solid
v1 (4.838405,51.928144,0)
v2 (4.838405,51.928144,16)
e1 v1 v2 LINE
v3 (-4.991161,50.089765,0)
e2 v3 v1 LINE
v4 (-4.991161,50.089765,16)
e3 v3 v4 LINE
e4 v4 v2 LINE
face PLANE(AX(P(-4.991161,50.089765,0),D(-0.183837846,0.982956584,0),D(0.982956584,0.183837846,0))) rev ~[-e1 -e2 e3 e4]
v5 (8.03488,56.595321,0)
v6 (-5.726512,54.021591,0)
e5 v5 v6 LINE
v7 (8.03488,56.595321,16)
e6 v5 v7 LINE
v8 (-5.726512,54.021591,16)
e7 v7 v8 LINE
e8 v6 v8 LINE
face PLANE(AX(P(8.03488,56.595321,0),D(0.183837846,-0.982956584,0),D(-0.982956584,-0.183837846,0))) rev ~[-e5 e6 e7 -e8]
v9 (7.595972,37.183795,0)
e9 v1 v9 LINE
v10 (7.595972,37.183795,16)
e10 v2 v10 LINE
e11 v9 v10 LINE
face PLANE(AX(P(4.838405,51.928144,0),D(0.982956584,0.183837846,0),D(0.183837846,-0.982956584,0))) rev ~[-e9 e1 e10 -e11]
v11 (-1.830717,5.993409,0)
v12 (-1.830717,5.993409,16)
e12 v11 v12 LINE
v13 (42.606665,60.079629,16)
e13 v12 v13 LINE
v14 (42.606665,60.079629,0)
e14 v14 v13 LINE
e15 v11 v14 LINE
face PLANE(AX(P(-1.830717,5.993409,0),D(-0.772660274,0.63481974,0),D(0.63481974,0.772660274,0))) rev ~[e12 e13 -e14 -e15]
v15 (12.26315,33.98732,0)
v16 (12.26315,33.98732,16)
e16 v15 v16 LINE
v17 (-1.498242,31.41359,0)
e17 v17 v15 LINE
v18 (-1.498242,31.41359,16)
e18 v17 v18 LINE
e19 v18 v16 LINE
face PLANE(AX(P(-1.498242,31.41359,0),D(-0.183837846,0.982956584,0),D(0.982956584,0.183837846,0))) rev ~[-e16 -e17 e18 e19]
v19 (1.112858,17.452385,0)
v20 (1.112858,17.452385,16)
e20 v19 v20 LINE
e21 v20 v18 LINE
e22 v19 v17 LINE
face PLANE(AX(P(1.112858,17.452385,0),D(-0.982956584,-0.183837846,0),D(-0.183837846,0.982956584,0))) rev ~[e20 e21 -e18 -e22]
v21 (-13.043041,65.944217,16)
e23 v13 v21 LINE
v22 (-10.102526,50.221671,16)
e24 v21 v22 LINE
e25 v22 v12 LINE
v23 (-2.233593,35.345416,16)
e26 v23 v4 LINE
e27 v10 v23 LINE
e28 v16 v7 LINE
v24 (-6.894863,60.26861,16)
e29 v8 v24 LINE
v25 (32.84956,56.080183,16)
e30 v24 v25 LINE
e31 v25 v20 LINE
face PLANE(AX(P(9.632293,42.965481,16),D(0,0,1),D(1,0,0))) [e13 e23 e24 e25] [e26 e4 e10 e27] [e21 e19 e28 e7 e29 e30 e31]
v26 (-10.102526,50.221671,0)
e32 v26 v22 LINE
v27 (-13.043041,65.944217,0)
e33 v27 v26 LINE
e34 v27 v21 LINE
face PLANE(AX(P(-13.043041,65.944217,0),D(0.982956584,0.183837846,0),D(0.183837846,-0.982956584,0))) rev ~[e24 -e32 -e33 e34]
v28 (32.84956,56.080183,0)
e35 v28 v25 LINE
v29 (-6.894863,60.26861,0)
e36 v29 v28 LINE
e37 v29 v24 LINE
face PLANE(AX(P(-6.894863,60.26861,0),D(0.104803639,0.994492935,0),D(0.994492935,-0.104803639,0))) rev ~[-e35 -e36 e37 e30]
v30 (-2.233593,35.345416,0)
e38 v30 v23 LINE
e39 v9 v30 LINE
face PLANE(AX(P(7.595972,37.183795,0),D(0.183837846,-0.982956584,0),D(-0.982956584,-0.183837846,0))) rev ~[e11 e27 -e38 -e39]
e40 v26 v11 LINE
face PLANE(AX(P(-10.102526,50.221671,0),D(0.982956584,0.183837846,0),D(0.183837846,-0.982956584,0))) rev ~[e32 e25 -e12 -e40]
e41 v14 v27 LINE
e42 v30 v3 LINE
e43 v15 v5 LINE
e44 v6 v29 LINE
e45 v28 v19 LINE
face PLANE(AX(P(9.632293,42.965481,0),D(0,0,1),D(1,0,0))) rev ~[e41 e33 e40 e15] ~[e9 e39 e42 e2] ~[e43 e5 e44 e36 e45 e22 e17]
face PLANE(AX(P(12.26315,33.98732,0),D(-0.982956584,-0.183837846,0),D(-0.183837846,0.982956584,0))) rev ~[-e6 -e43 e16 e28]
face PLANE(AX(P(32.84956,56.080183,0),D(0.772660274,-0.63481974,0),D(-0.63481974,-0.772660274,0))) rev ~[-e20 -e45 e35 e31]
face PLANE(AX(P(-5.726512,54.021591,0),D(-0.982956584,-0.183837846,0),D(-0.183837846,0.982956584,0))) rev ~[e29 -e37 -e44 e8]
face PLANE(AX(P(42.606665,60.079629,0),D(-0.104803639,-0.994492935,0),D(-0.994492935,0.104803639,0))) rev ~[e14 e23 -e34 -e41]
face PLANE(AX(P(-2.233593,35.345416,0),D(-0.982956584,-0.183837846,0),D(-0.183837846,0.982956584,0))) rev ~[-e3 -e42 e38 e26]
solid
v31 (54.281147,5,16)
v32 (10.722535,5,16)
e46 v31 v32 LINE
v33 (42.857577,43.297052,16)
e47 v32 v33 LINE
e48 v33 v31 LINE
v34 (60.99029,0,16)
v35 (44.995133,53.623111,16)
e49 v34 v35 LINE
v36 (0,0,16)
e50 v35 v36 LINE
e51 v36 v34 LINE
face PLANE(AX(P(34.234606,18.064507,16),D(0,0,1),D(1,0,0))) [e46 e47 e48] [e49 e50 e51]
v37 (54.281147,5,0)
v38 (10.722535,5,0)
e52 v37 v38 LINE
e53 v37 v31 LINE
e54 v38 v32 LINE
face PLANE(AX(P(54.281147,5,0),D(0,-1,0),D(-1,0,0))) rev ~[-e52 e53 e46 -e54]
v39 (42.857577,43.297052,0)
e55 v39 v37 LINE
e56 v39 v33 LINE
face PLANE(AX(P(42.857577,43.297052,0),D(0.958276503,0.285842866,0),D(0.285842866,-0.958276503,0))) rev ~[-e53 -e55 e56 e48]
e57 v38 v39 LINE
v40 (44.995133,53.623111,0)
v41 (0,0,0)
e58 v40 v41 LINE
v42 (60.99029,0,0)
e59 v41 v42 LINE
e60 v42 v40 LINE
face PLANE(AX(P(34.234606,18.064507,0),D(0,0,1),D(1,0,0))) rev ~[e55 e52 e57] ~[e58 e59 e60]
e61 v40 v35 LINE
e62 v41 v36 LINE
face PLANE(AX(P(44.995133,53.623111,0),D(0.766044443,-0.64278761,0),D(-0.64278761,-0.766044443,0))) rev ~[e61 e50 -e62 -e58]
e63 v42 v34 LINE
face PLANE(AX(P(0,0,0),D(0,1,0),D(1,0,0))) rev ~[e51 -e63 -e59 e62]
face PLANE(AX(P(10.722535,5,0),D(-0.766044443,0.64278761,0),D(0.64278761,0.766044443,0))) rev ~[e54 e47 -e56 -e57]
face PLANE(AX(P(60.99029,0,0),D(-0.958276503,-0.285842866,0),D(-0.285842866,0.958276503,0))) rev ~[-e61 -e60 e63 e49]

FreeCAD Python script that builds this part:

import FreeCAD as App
import Part
import Sketcher
from FreeCAD import Vector
Q = App.Units.Quantity

doc = App.newDocument("Part")
params = doc.addObject("Spreadsheet::Sheet", "Params")
for row, (alias, value) in enumerate([
    ("sketch1_length", "70 mm"),
    ("sketch1_length2", "10 mm"),
    ("sketch1_length3", "15 mm"),
    ("sketch1_length4", "14 mm"),
    ("sketch1_length5", "23 mm"),
    ("pad1_length", "16 mm"),
    ("sketch2_length", "70 mm"),
    ("pad2_length", "16 mm"),
], start=1):
    params.set(f"A{row}", alias)
    params.set(f"B{row}", "=" + value)
    params.setAlias(f"B{row}", alias)

body = doc.addObject("PartDesign::Body", "Body")

# Sketch on XY plane
sketch1 = body.newObject("Sketcher::SketchObject", "Sketch")
sketch1.AttachmentSupport = (doc.getObject("XY_Plane"), [""])
sketch1.MapMode = "FlatFace"
sketch1.addGeometry([
    Part.LineSegment(Vector(-1.830717, 5.993409, 0), Vector(42.606665, 60.079629, 0)),  # 0
    Part.LineSegment(Vector(42.606665, 60.079629, 0), Vector(-13.043041, 65.944217, 0)),  # 1
    Part.LineSegment(Vector(-13.043041, 65.944217, 0), Vector(-10.102526, 50.221671, 0)),  # 2
    Part.LineSegment(Vector(-10.102526, 50.221671, 0), Vector(-1.830717, 5.993409, 0)),  # 3
    Part.LineSegment(Vector(7.595972, 37.183795, 0), Vector(-2.233593, 35.345416, 0)),  # 4
    Part.LineSegment(Vector(-2.233593, 35.345416, 0), Vector(-4.991161, 50.089765, 0)),  # 5
    Part.LineSegment(Vector(-4.991161, 50.089765, 0), Vector(4.838405, 51.928144, 0)),  # 6
    Part.LineSegment(Vector(4.838405, 51.928144, 0), Vector(7.595972, 37.183795, 0)),  # 7
    Part.LineSegment(Vector(-5.726512, 54.021591, 0), Vector(-6.894863, 60.26861, 0)),  # 8
    Part.LineSegment(Vector(-6.894863, 60.26861, 0), Vector(32.84956, 56.080183, 0)),  # 9
    Part.LineSegment(Vector(32.84956, 56.080183, 0), Vector(1.112858, 17.452385, 0)),  # 10
    Part.LineSegment(Vector(1.112858, 17.452385, 0), Vector(-1.498242, 31.41359, 0)),  # 11
    Part.LineSegment(Vector(-1.498242, 31.41359, 0), Vector(12.26315, 33.98732, 0)),  # 12
    Part.LineSegment(Vector(12.26315, 33.98732, 0), Vector(8.03488, 56.595321, 0)),  # 13
    Part.LineSegment(Vector(8.03488, 56.595321, 0), Vector(-5.726512, 54.021591, 0)),  # 14
], False)
sketch1.addConstraint([
    Sketcher.Constraint("Coincident", 0, 2, 1, 1),
    Sketcher.Constraint("Coincident", 1, 2, 2, 1),
    Sketcher.Constraint("Coincident", 2, 2, 3, 1),
    Sketcher.Constraint("Coincident", 3, 2, 0, 1),
    Sketcher.Constraint("Coincident", 4, 2, 5, 1),
    Sketcher.Constraint("Coincident", 5, 2, 6, 1),
    Sketcher.Constraint("Coincident", 6, 2, 7, 1),
    Sketcher.Constraint("Coincident", 7, 2, 4, 1),
    Sketcher.Constraint("Coincident", 8, 2, 9, 1),
    Sketcher.Constraint("Coincident", 9, 2, 10, 1),
    Sketcher.Constraint("Coincident", 10, 2, 11, 1),
    Sketcher.Constraint("Coincident", 11, 2, 12, 1),
    Sketcher.Constraint("Coincident", 12, 2, 13, 1),
    Sketcher.Constraint("Coincident", 13, 2, 14, 1),
    Sketcher.Constraint("Coincident", 14, 2, 8, 1),
    Sketcher.Constraint("Parallel", 2, 3),
    Sketcher.Constraint("Perpendicular", 3, 4),
    Sketcher.Constraint("Perpendicular", 4, 5),
    Sketcher.Constraint("Perpendicular", 5, 6),
    Sketcher.Constraint("Perpendicular", 6, 7),
    Sketcher.Constraint("Parallel", 7, 8),
    Sketcher.Constraint("Parallel", 1, 9),
    Sketcher.Constraint("Parallel", 0, 10),
    Sketcher.Constraint("Parallel", 8, 11),
    Sketcher.Constraint("Perpendicular", 11, 12),
    Sketcher.Constraint("Perpendicular", 12, 13),
    Sketcher.Constraint("Perpendicular", 13, 14),
    Sketcher.Constraint("Equal", 12, 14),
    Sketcher.Constraint("Distance", 0, Q("70 mm")),
    Sketcher.Constraint("Distance", 4, Q("10 mm")),
    Sketcher.Constraint("Distance", 5, Q("15 mm")),
    Sketcher.Constraint("Distance", 12, Q("14 mm")),
    Sketcher.Constraint("Distance", 13, Q("23 mm")),
    Sketcher.Constraint("DistanceX", 4, 2, 6, 2, Q("7.071998 mm")),
    Sketcher.Constraint("DistanceY", 4, 2, 1, 2, Q("30.598801 mm")),
    Sketcher.Constraint("DistanceX", 2, 2, 7, 2, Q("17.698498 mm")),
    Sketcher.Constraint("DistanceX", 11, 2, 10, 2, Q("2.6111 mm")),
    Sketcher.Constraint("Distance", 1, Q("55.957869 mm")),
    Sketcher.Constraint("Distance", 9, Q("39.964511 mm")),
    Sketcher.Constraint("DistanceY", -1, 1, 0, 2, Q("60.079629 mm")),
    Sketcher.Constraint("DistanceX", 1, 2, -1, 1, Q("13.043041 mm")),
    Sketcher.Constraint("DistanceY", -1, 1, 2, 2, Q("50.221671 mm")),
    Sketcher.Constraint("DistanceY", -1, 1, 3, 2, Q("5.993409 mm")),
    Sketcher.Constraint("DistanceY", -1, 1, 8, 2, Q("60.26861 mm")),
    Sketcher.Constraint("DistanceX", -1, 1, 9, 2, Q("32.84956 mm")),
])
sketch1.setExpression("Constraints[28]", "Params.sketch1_length")
sketch1.setExpression("Constraints[29]", "Params.sketch1_length2")
sketch1.setExpression("Constraints[30]", "Params.sketch1_length3")
sketch1.setExpression("Constraints[31]", "Params.sketch1_length4")
sketch1.setExpression("Constraints[32]", "Params.sketch1_length5")
pad1 = body.newObject("PartDesign::Pad", "Pad")
pad1.Profile = sketch1
pad1.setExpression("Length", "Params.pad1_length")
body2 = doc.addObject("PartDesign::Body", "Body001")

# Sketch on XY plane
sketch2 = body2.newObject("Sketcher::SketchObject", "Sketch001")
sketch2.AttachmentSupport = (doc.getObject("XY_Plane001"), [""])
sketch2.MapMode = "FlatFace"
sketch2.addGeometry([
    Part.LineSegment(Vector(44.995133, 53.623111, 0), Vector(0, 0, 0)),  # 0
    Part.LineSegment(Vector(0, 0, 0), Vector(60.99029, 0, 0)),  # 1
    Part.LineSegment(Vector(60.99029, 0, 0), Vector(44.995133, 53.623111, 0)),  # 2
    Part.LineSegment(Vector(54.281147, 5, 0), Vector(10.722535, 5, 0)),  # 3
    Part.LineSegment(Vector(10.722535, 5, 0), Vector(42.857577, 43.297052, 0)),  # 4
    Part.LineSegment(Vector(42.857577, 43.297052, 0), Vector(54.281147, 5, 0)),  # 5
], False)
sketch2.addConstraint([
    Sketcher.Constraint("Coincident", 0, 2, 1, 1),
    Sketcher.Constraint("Coincident", 1, 2, 2, 1),
    Sketcher.Constraint("Coincident", 2, 2, 0, 1),
    Sketcher.Constraint("Coincident", 3, 2, 4, 1),
    Sketcher.Constraint("Coincident", 4, 2, 5, 1),
    Sketcher.Constraint("Coincident", 5, 2, 3, 1),
    Sketcher.Constraint("Horizontal", 1),
    Sketcher.Constraint("Horizontal", 3),
    Sketcher.Constraint("Coincident", 0, 2, -1, 1),
    Sketcher.Constraint("Parallel", 0, 4),
    Sketcher.Constraint("Parallel", 2, 5),
    Sketcher.Constraint("Angle", 0, Q("-130 deg")),
    Sketcher.Constraint("Distance", 0, Q("70 mm")),
    Sketcher.Constraint("DistanceY", -1, 1, 3, 2, Q("5 mm")),
    Sketcher.Constraint("DistanceX", 1, 1, 1, 2, Q("60.99029 mm")),
    Sketcher.Constraint("DistanceX", 3, 2, 2, 2, Q("34.272598 mm")),
    Sketcher.Constraint("Distance", 4, Q("49.993251 mm")),
])
sketch2.setExpression("Constraints[12]", "Params.sketch2_length")
pad2 = body2.newObject("PartDesign::Pad", "Pad001")
pad2.Profile = sketch2
pad2.setExpression("Length", "Params.pad2_length")

doc.recompute()
